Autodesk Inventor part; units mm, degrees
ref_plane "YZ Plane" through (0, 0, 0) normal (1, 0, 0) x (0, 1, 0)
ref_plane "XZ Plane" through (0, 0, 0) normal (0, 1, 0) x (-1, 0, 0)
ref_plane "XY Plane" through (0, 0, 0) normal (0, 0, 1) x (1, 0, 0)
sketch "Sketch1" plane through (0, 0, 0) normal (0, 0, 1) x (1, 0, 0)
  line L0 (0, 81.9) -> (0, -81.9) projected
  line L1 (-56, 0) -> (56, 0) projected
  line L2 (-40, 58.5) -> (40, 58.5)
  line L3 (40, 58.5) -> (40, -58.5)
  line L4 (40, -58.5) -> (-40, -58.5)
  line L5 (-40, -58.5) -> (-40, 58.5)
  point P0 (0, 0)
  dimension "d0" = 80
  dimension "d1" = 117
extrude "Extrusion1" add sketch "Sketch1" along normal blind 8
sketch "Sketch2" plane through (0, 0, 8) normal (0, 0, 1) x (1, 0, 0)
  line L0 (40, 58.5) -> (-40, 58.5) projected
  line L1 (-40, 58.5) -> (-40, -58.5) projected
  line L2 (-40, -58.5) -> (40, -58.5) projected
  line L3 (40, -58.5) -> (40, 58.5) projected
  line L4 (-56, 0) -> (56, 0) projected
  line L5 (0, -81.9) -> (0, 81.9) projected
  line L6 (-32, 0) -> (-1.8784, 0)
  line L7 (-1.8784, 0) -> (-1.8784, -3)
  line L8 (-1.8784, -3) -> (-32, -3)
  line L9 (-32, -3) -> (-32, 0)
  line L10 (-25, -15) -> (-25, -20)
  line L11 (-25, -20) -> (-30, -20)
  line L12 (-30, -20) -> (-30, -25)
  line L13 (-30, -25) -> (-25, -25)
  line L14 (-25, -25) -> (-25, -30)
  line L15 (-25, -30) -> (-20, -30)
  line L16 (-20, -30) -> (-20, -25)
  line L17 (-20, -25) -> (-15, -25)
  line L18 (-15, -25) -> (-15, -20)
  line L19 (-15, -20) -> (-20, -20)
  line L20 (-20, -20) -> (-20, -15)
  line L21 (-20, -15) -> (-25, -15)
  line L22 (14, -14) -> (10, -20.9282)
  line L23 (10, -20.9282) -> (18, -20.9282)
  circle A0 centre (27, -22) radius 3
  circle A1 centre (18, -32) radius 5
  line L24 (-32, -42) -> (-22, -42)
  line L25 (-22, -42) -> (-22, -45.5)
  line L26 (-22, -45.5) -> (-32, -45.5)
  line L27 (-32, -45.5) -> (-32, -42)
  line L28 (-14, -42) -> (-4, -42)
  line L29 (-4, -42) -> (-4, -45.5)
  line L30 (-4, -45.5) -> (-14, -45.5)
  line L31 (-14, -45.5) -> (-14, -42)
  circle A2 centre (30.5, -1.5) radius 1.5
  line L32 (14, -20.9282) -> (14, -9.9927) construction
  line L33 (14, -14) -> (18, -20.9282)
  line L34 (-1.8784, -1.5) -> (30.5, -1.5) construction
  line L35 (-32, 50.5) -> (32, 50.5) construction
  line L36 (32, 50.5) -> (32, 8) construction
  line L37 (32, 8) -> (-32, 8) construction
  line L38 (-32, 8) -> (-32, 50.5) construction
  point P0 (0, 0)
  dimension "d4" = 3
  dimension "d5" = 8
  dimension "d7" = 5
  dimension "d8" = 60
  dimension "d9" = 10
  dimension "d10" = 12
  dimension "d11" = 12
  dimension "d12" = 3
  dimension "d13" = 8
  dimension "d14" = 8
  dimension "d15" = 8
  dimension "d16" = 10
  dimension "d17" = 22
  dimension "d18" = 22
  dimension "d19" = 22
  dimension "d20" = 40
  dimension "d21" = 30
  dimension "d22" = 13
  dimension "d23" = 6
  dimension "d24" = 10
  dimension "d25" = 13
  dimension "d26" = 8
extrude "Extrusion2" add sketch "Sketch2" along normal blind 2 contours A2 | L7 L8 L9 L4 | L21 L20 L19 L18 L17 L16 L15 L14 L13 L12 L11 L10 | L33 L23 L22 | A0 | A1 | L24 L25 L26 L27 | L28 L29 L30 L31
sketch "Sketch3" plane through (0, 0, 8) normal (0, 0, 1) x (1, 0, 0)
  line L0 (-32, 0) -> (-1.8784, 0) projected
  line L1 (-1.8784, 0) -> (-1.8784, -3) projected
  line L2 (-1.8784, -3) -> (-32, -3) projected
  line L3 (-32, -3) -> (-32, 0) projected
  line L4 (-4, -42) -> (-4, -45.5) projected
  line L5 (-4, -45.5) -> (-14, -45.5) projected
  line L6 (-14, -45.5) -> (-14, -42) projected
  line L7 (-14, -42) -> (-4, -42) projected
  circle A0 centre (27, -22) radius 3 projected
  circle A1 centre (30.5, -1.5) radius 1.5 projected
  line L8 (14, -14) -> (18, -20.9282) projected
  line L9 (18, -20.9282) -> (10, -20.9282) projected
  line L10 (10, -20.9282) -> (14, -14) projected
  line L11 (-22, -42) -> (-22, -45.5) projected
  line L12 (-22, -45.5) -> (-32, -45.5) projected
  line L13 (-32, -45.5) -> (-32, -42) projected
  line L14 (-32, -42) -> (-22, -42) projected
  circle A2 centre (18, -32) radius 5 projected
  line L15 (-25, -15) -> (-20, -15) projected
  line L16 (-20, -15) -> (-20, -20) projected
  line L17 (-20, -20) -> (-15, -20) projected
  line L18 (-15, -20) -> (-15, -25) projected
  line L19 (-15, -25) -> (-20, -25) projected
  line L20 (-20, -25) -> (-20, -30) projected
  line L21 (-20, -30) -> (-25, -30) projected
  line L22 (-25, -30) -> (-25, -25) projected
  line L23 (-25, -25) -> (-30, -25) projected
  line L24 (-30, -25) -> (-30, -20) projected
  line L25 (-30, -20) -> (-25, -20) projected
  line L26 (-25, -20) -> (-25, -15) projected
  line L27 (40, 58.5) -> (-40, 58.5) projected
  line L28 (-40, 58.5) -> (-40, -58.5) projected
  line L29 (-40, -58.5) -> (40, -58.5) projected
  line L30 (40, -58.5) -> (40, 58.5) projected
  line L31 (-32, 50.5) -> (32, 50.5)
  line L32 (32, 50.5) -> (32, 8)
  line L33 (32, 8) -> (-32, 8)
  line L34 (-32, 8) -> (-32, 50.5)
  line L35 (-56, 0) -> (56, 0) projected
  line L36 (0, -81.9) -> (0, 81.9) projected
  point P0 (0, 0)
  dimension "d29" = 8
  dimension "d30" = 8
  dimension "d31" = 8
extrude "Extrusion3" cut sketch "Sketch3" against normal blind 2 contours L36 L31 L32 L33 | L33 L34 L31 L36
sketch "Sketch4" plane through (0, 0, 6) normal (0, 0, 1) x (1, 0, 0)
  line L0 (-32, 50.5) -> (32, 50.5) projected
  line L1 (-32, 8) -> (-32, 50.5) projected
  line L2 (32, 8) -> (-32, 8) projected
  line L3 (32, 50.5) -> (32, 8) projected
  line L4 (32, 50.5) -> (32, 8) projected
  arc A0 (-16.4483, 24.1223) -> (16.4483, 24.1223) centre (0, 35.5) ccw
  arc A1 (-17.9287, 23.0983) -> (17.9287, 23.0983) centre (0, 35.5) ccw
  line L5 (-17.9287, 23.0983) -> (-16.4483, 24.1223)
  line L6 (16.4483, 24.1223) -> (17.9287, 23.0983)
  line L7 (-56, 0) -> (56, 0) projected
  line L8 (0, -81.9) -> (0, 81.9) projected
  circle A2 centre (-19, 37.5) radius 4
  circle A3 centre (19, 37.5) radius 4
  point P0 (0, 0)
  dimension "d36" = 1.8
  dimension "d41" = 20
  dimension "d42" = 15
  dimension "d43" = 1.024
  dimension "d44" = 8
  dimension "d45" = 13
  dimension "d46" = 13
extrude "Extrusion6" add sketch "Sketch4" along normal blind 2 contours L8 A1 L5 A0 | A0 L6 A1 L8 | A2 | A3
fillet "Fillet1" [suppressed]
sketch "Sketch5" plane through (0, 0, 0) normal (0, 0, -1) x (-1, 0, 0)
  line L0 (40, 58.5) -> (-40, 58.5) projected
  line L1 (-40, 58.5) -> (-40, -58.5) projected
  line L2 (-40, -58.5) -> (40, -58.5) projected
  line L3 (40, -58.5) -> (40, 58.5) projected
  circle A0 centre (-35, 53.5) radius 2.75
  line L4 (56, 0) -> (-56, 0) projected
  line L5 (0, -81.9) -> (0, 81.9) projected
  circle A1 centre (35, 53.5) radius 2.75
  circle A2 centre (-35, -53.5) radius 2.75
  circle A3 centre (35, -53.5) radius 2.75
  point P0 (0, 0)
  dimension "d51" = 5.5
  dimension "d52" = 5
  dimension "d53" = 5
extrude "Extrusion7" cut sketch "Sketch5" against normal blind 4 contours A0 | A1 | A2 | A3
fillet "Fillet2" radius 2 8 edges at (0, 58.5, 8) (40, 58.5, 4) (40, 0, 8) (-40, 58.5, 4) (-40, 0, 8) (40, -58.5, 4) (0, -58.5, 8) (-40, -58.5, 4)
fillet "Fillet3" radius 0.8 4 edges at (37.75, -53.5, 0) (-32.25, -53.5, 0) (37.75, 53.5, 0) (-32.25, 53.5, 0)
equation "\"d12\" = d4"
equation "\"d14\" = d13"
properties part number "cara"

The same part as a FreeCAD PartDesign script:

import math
import FreeCAD as App
import Part
import Sketcher
from FreeCAD import Vector
Q = App.Units.Quantity


def edges_at(feature, points):
    """Names of the edges that pass closest to the given points."""
    edges = feature.Shape.Edges
    near = lambda p: min(range(len(edges)), key=lambda i: edges[i].distToShape(Part.Vertex(*p))[0])
    return sorted({f"Edge{near(p) + 1}" for p in points})


def add_polygon(sketch, points):
    """Adds a closed chain of lines whose ends are joined by coincident constraints."""
    first, n = sketch.GeometryCount, len(points)
    for a, b in zip(points, points[1:] + points[:1]):
        sketch.addGeometry(Part.LineSegment(App.Vector(*a, 0), App.Vector(*b, 0)), False)
    for i in range(n):
        sketch.addConstraint(Sketcher.Constraint("Coincident", first + i, 2, first + (i + 1) % n, 1))

doc = App.newDocument("Part")
params = doc.addObject("Spreadsheet::Sheet", "Params")
for row, (alias, value) in enumerate([
    ("sketch1_width", "80 mm"),
    ("sketch1_height", "117 mm"),
    ("pad1_length", "8 mm"),
    ("sketch2_diameter", "3 mm"),
    ("sketch2_diameter2", "6 mm"),
    ("sketch2_diameter3", "10 mm"),
    ("sketch2_width", "5 mm"),
    ("sketch2_width2", "8 mm"),
    ("pad2_length", "2 mm"),
    ("sketch3_width", "64 mm"),
    ("sketch3_height", "42.5 mm"),
    ("pocket1_length", "2 mm"),
    ("sketch4_diameter", "8 mm"),
    ("sketch4_radius", "20 mm"),
    ("sketch4_length", "1.8 mm"),
    ("pad3_length", "2 mm"),
    ("sketch5_diameter", "5.5 mm"),
    ("pocket2_length", "4 mm"),
    ("fillet_radius", "2 mm"),
    ("fillet2_radius", "0.8 mm"),
], start=1):
    params.set(f"A{row}", alias)
    params.set(f"B{row}", "=" + value)
    params.setAlias(f"B{row}", alias)

body = doc.addObject("PartDesign::Body", "Body")

# Sketch on XY plane
sketch1 = body.newObject("Sketcher::SketchObject", "Sketch")
sketch1.AttachmentSupport = (doc.getObject("XY_Plane"), [""])
sketch1.MapMode = "FlatFace"
add_polygon(sketch1, [(40, 58), (-40, 58), (-40, -58), (40, -58)])  # lines 0-3
sketch1.addConstraint([
    Sketcher.Constraint("Horizontal", 0),
    Sketcher.Constraint("Vertical", 1),
    Sketcher.Constraint("Horizontal", 2),
    Sketcher.Constraint("Vertical", 3),
    Sketcher.Constraint("Symmetric", 0, 2, 2, 2, -1, 1),
    Sketcher.Constraint("DistanceX", 0, 2, 0, 1, Q("80 mm")),
    Sketcher.Constraint("DistanceY", 1, 2, 1, 1, Q("117 mm")),
])
sketch1.setExpression("Constraints[9]", "Params.sketch1_width")
sketch1.setExpression("Constraints[10]", "Params.sketch1_height")
pad1 = body.newObject("PartDesign::Pad", "Pad")
pad1.Profile = sketch1
pad1.setExpression("Length", "Params.pad1_length")

# Sketch on XY plane
sketch2 = body.newObject("Sketcher::SketchObject", "Sketch001")
sketch2.AttachmentSupport = (doc.getObject("XY_Plane"), [""])
sketch2.MapMode = "FlatFace"
sketch2.AttachmentOffset = App.Placement(Vector(0, 0, 8), App.Rotation())
sketch2.addGeometry(Part.Circle(Vector(30.5, -1.5, 0), Vector(0, 0, 1), 1.5), False)  # 0
add_polygon(sketch2, [(-1.9, -3), (-1.9, 0), (-32, 0), (-32, -3)])  # lines 1-4
add_polygon(sketch2, [(-20, -15), (-25, -15), (-25, -20), (-30, -20), (-30, -25), (-25, -25), (-25, -30), (-20, -30), (-20, -25), (-15, -25), (-15, -20), (-20, -20)])  # lines 5-16
add_polygon(sketch2, [(18, -20.9), (14, -14), (10, -20.9)])  # lines 17-19
sketch2.addGeometry(Part.Circle(Vector(27, -22, 0), Vector(0, 0, 1), 3), False)  # 20
sketch2.addGeometry(Part.Circle(Vector(18, -32, 0), Vector(0, 0, 1), 5), False)  # 21
add_polygon(sketch2, [(-22, -42), (-32, -42), (-32, -45.5), (-22, -45.5)])  # lines 22-25
add_polygon(sketch2, [(-4, -42), (-14, -42), (-14, -45.5), (-4, -45.5)])  # lines 26-29
sketch2.addConstraint([
    Sketcher.Constraint("Vertical", 1),
    Sketcher.Constraint("Horizontal", 2),
    Sketcher.Constraint("Vertical", 3),
    Sketcher.Constraint("Horizontal", 4),
    Sketcher.Constraint("Horizontal", 5),
    Sketcher.Constraint("Vertical", 6),
    Sketcher.Constraint("Horizontal", 7),
    Sketcher.Constraint("Vertical", 8),
    Sketcher.Constraint("Horizontal", 9),
    Sketcher.Constraint("Vertical", 10),
    Sketcher.Constraint("Horizontal", 11),
    Sketcher.Constraint("Vertical", 12),
    Sketcher.Constraint("Horizontal", 13),
    Sketcher.Constraint("Vertical", 14),
    Sketcher.Constraint("Horizontal", 15),
    Sketcher.Constraint("Vertical", 16),
    Sketcher.Constraint("Horizontal", 19),
    Sketcher.Constraint("Horizontal", 22),
    Sketcher.Constraint("Vertical", 23),
    Sketcher.Constraint("Horizontal", 24),
    Sketcher.Constraint("Vertical", 25),
    Sketcher.Constraint("Horizontal", 26),
    Sketcher.Constraint("Vertical", 27),
    Sketcher.Constraint("Horizontal", 28),
    Sketcher.Constraint("Vertical", 29),
    Sketcher.Constraint("PointOnObject", 1, 2, -1),
    Sketcher.Constraint("Horizontal", 9, 2, 12, 2),
    Sketcher.Constraint("Horizontal", 7, 2, 14, 2),
    Sketcher.Constraint("Horizontal", 25, 2, 26, 2),
    Sketcher.Constraint("Horizontal", 24, 2, 27, 2),
    Sketcher.Constraint("Vertical", 6, 2, 9, 2),
    Sketcher.Constraint("Vertical", 12, 2, 15, 2),
    Sketcher.Constraint("Vertical", 21, 3, 19, 2),
    Sketcher.Constraint("Vertical", 3, 2, 22, 2),
    Sketcher.Constraint("Equal", 5, 7),
    Sketcher.Constraint("Equal", 11, 13),
    Sketcher.Constraint("Equal", 24, 26),
    Sketcher.Constraint("Equal", 15, 6),
    Sketcher.Constraint("Equal", 6, 8),
    Sketcher.Constraint("Equal", 8, 10),
    Sketcher.Constraint("Equal", 17, 18),
    Sketcher.Constraint("Diameter", 0, Q("3 mm")),
    Sketcher.Constraint("Diameter", 20, Q("6 mm")),
    Sketcher.Constraint("Diameter", 21, Q("10 mm")),
    Sketcher.Constraint("DistanceX", 5, 2, 5, 1, Q("5 mm")),
    Sketcher.Constraint("DistanceX", 19, 1, 19, 2, Q("8 mm")),
    Sketcher.Constraint("DistanceX", 22, 2, 22, 1, Q("10 mm")),
    Sketcher.Constraint("DistanceY", 1, 1, 1, 2, Q("3 mm")),
    Sketcher.Constraint("Distance", 17, Q("8 mm")),
    Sketcher.Constraint("DistanceY", 20, 3, -1, 1, Q("22 mm")),
    Sketcher.Constraint("DistanceX", 7, 2, -1, 1, Q("30 mm")),
    Sketcher.Constraint("DistanceY", 10, 2, -1, 1, Q("30 mm")),
    Sketcher.Constraint("DistanceX", -1, 1, 18, 2, Q("10 mm")),
    Sketcher.Constraint("DistanceX", 24, 2, -1, 1, Q("22 mm")),
    Sketcher.Constraint("DistanceY", 21, 3, 20, 3, Q("10 mm")),
    Sketcher.Constraint("DistanceX", 17, 2, 20, 3, Q("13 mm")),
    Sketcher.Constraint("DistanceY", 20, 3, 17, 2, Q("8 mm")),
    Sketcher.Constraint("DistanceY", 22, 2, 10, 2, Q("12 mm")),
    Sketcher.Constraint("DistanceX", 25, 2, 26, 2, Q("8 mm")),
    Sketcher.Constraint("DistanceY", 23, 2, 23, 1, Q("3.5 mm")),
    Sketcher.Constraint("DistanceX", -1, 1, 0, 3, Q("30.5 mm")),
    Sketcher.Constraint("DistanceY", 0, 3, -1, 1, Q("1.5 mm")),
    Sketcher.Constraint("DistanceX", 2, 2, 2, 1, Q("30.1216 mm")),
])
sketch2.setExpression("Constraints[68]", "Params.sketch2_diameter")
sketch2.setExpression("Constraints[69]", "Params.sketch2_diameter2")
sketch2.setExpression("Constraints[70]", "Params.sketch2_diameter3")
sketch2.setExpression("Constraints[71]", "Params.sketch2_width")
sketch2.setExpression("Constraints[72]", "Params.sketch2_width2")
pad2 = body.newObject("PartDesign::Pad", "Pad001")
pad2.Profile = sketch2
pad2.setExpression("Length", "Params.pad2_length")

# Sketch on XY plane
sketch3 = body.newObject("Sketcher::SketchObject", "Sketch002")
sketch3.AttachmentSupport = (doc.getObject("XY_Plane"), [""])
sketch3.MapMode = "FlatFace"
sketch3.AttachmentOffset = App.Placement(Vector(0, 0, 8), App.Rotation())
add_polygon(sketch3, [(32, 50), (-32, 50), (-32, 8), (32, 8)])  # lines 0-3
sketch3.addConstraint([
    Sketcher.Constraint("Horizontal", 0),
    Sketcher.Constraint("Vertical", 1),
    Sketcher.Constraint("Horizontal", 2),
    Sketcher.Constraint("Vertical", 3),
    Sketcher.Constraint("DistanceY", -1, 1, 1, 2, Q("8 mm")),
    Sketcher.Constraint("DistanceX", 0, 2, 0, 1, Q("64 mm")),
    Sketcher.Constraint("DistanceY", 1, 2, 1, 1, Q("42.5 mm")),
    Sketcher.Constraint("DistanceX", 0, 2, -1, 1, Q("32 mm")),
])
sketch3.setExpression("Constraints[9]", "Params.sketch3_width")
sketch3.setExpression("Constraints[10]", "Params.sketch3_height")
pocket1 = body.newObject("PartDesign::Pocket", "Pocket")
pocket1.Profile = sketch3
pocket1.setExpression("Length", "Params.pocket1_length")

# Sketch on XY plane
sketch4 = body.newObject("Sketcher::SketchObject", "Sketch003")
sketch4.AttachmentSupport = (doc.getObject("XY_Plane"), [""])
sketch4.MapMode = "FlatFace"
sketch4.AttachmentOffset = App.Placement(Vector(0, 0, 6), App.Rotation())
sketch4.addGeometry([
    Part.ArcOfCircle(Part.Circle(Vector(0, 35.5, 0), Vector(0, 0, 1), 21.8), math.radians(-145), math.radians(-35)),  # 0
    Part.LineSegment(Vector(17.9, 23.1, 0), Vector(16.4, 24.1, 0)),  # 1
    Part.ArcOfCircle(Part.Circle(Vector(0, 35.5, 0), Vector(0, 0, 1), 20), math.radians(-145), math.radians(-35)),  # 2
    Part.LineSegment(Vector(-16.4, 24.1, 0), Vector(-17.9, 23.1, 0)),  # 3
    Part.Circle(Vector(-19, 37.5, 0), Vector(0, 0, 1), 4),  # 4
    Part.Circle(Vector(19, 37.5, 0), Vector(0, 0, 1), 4),  # 5
], False)
sketch4.addConstraint([
    Sketcher.Constraint("Coincident", 0, 2, 1, 1),
    Sketcher.Constraint("Coincident", 1, 2, 2, 2),
    Sketcher.Constraint("Coincident", 2, 1, 3, 1),
    Sketcher.Constraint("Coincident", 3, 2, 0, 1),
    Sketcher.Constraint("Coincident", 2, 3, 0, 3),
    Sketcher.Constraint("Equal", 4, 5),
    Sketcher.Constraint("Symmetric", 4, 3, 5, 3, -2),
    Sketcher.Constraint("Symmetric", 1, 2, 2, 1, -2),
    Sketcher.Constraint("Horizontal", 0, 2, 3, 2),
    Sketcher.Constraint("Diameter", 4, Q("8 mm")),
    Sketcher.Constraint("Radius", 2, Q("20 mm")),
    Sketcher.Constraint("Distance", 1, Q("1.8 mm")),
    Sketcher.Constraint("DistanceX", 4, 3, -1, 1, Q("19 mm")),
    Sketcher.Constraint("DistanceY", 0, 3, 4, 3, Q("2 mm")),
    Sketcher.Constraint("DistanceY", 0, 2, 1, 2, Q("1.024 mm")),
    Sketcher.Constraint("DistanceY", -1, 1, 0, 3, Q("35.5 mm")),
    Sketcher.Constraint("DistanceX", 2, 1, 0, 2, Q("34.377 mm")),
])
sketch4.setExpression("Constraints[9]", "Params.sketch4_diameter")
sketch4.setExpression("Constraints[10]", "Params.sketch4_radius")
sketch4.setExpression("Constraints[11]", "Params.sketch4_length")
pad3 = body.newObject("PartDesign::Pad", "Pad002")
pad3.Profile = sketch4
pad3.setExpression("Length", "Params.pad3_length")

# Sketch on XY plane
sketch5 = body.newObject("Sketcher::SketchObject", "Sketch004")
sketch5.AttachmentSupport = (doc.getObject("XY_Plane"), [""])
sketch5.MapMode = "FlatFace"
sketch5.addGeometry([
    Part.Circle(Vector(35, 53.5, 0), Vector(0, 0, 1), 2.8),
    Part.Circle(Vector(-35, 53.5, 0), Vector(0, 0, 1), 2.8),
    Part.Circle(Vector(35, -53.5, 0), Vector(0, 0, 1), 2.8),
    Part.Circle(Vector(-35, -53.5, 0), Vector(0, 0, 1), 2.8),
], False)
sketch5.addConstraint([
    Sketcher.Constraint("Equal", 0, 1),
    Sketcher.Constraint("Equal", 1, 2),
    Sketcher.Constraint("Equal", 2, 3),
    Sketcher.Constraint("Symmetric", 1, 3, 2, 3, -1, 1),
    Sketcher.Constraint("Symmetric", 0, 3, 3, 3, -1, 1),
    Sketcher.Constraint("Symmetric", 0, 3, 1, 3, -2),
    Sketcher.Constraint("Diameter", 0, Q("5.5 mm")),
    Sketcher.Constraint("DistanceX", -1, 1, 0, 3, Q("35 mm")),
    Sketcher.Constraint("DistanceY", 2, 3, 0, 3, Q("107 mm")),
])
sketch5.setExpression("Constraints[6]", "Params.sketch5_diameter")
pocket2 = body.newObject("PartDesign::Pocket", "Pocket001")
pocket2.Profile = sketch5
pocket2.setExpression("Length", "Params.pocket2_length")
pocket2.Reversed = True
doc.recompute()

fillet = body.newObject("PartDesign::Fillet", "Fillet")
fillet.Base = (pocket2, edges_at(pocket2, [
    (0, 58.5, 8),
    (40, 58.5, 4),
    (40, 0, 8),
    (-40, 58.5, 4),
    (-40, 0, 8),
    (40, -58.5, 4),
    (0, -58.5, 8),
    (-40, -58.5, 4),
]))
fillet.setExpression("Radius", "Params.fillet_radius")
doc.recompute()

fillet2 = body.newObject("PartDesign::Fillet", "Fillet001")
fillet2.Base = (fillet, edges_at(fillet, [
    (37.75, -53.5, 0),
    (-32.25, -53.5, 0),
    (37.75, 53.5, 0),
    (-32.25, 53.5, 0),
]))
fillet2.setExpression("Radius", "Params.fillet2_radius")

doc.recompute()
